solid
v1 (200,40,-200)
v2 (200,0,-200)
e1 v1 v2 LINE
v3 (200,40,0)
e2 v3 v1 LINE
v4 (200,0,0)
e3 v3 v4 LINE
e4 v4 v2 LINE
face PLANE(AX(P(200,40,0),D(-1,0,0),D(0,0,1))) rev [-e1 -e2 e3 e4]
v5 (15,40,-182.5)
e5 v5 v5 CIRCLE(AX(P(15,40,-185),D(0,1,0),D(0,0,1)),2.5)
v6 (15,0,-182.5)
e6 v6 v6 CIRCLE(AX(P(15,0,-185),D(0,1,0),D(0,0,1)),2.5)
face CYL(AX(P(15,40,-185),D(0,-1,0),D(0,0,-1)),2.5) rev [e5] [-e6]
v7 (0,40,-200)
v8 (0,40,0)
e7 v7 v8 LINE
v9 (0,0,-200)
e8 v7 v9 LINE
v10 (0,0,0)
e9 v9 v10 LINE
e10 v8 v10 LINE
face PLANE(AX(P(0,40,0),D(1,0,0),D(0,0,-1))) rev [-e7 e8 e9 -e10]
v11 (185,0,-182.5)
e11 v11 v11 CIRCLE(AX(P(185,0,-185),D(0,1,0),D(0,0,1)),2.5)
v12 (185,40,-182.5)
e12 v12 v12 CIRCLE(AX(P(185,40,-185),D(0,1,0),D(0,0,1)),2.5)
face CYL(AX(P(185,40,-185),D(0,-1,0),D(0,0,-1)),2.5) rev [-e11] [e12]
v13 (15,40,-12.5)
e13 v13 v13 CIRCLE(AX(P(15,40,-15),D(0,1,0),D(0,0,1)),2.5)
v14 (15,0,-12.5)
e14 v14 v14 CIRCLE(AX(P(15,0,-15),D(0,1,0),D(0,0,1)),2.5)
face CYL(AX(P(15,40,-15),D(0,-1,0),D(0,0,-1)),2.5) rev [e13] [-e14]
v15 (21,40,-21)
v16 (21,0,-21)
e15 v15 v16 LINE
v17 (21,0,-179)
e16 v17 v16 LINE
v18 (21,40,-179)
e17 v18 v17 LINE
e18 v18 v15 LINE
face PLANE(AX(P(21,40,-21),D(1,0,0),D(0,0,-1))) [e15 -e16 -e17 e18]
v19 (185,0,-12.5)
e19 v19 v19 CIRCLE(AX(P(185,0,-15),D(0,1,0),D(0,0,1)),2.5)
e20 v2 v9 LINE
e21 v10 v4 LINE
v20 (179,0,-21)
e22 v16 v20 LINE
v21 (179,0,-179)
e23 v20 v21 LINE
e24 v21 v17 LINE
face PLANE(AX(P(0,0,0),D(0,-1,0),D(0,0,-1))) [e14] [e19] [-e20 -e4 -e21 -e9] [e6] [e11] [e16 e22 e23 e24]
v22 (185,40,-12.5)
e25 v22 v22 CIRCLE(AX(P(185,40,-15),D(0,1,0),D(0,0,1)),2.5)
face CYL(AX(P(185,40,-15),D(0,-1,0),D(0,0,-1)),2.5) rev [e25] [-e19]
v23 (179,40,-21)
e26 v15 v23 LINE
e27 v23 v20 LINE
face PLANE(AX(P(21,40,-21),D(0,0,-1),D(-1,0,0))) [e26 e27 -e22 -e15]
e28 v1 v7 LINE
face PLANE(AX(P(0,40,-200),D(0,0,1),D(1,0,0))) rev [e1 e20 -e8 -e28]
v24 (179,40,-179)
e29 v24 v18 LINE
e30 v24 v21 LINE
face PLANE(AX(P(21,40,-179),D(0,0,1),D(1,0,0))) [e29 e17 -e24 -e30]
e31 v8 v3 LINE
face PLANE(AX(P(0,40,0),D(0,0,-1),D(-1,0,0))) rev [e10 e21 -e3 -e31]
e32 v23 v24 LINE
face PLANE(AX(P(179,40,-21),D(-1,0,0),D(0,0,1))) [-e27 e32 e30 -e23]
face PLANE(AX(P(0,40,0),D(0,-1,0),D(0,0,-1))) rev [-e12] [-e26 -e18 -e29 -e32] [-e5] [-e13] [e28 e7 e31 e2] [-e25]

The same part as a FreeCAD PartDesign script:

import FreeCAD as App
import Part
import Sketcher
from FreeCAD import Vector

doc = App.newDocument("Part")
body = doc.addObject("PartDesign::Body", "Body")

# Sketch on XZ plane
sketch1 = body.newObject("Sketcher::SketchObject", "Sketch")
sketch1.AttachmentSupport = (doc.getObject("XZ_Plane"), [""])
sketch1.MapMode = "FlatFace"
sketch1.addGeometry([
    Part.LineSegment(Vector(0, -200, 0), Vector(0, 0, 0)),  # 0
    Part.LineSegment(Vector(0, 0, 0), Vector(200, 0, 0)),  # 1
    Part.LineSegment(Vector(200, 0, 0), Vector(200, -200, 0)),  # 2
    Part.LineSegment(Vector(200, -200, 0), Vector(0, -200, 0)),  # 3
    Part.Circle(Vector(15, -15, 0), Vector(0, 0, 1), 2.5),  # 4
    Part.Circle(Vector(185, -15, 0), Vector(0, 0, 1), 2.5),  # 5
    Part.Circle(Vector(15, -185, 0), Vector(0, 0, 1), 2.5),  # 6
    Part.LineSegment(Vector(179, -21, 0), Vector(21, -21, 0)),  # 7
    Part.LineSegment(Vector(21, -21, 0), Vector(21, -179, 0)),  # 8
    Part.LineSegment(Vector(21, -179, 0), Vector(179, -179, 0)),  # 9
    Part.LineSegment(Vector(179, -179, 0), Vector(179, -21, 0)),  # 10
    Part.Circle(Vector(185, -185, 0), Vector(0, 0, 1), 2.5),  # 11
], False)
sketch1.addConstraint([
    Sketcher.Constraint("Coincident", 0, 2, 1, 1),
    Sketcher.Constraint("Coincident", 1, 2, 2, 1),
    Sketcher.Constraint("Coincident", 2, 2, 3, 1),
    Sketcher.Constraint("Coincident", 3, 2, 0, 1),
    Sketcher.Constraint("Coincident", 7, 2, 8, 1),
    Sketcher.Constraint("Coincident", 8, 2, 9, 1),
    Sketcher.Constraint("Coincident", 9, 2, 10, 1),
    Sketcher.Constraint("Coincident", 10, 2, 7, 1),
    Sketcher.Constraint("Vertical", 0),
    Sketcher.Constraint("Horizontal", 1),
    Sketcher.Constraint("Vertical", 2),
    Sketcher.Constraint("Horizontal", 3),
    Sketcher.Constraint("Horizontal", 7),
    Sketcher.Constraint("Vertical", 8),
    Sketcher.Constraint("Horizontal", 9),
    Sketcher.Constraint("Vertical", 10),
    Sketcher.Constraint("Coincident", 0, 2, -1, 1),
    Sketcher.Constraint("Equal", 4, 5),
    Sketcher.Constraint("Equal", 5, 6),
    Sketcher.Constraint("Equal", 6, 11),
    Sketcher.Constraint("Horizontal", 4, 3, 5, 3),
    Sketcher.Constraint("Horizontal", 6, 3, 11, 3),
    Sketcher.Constraint("Vertical", 4, 3, 6, 3),
    Sketcher.Constraint("Vertical", 5, 3, 11, 3),
    Sketcher.Constraint("Equal", 3, 0),
    Sketcher.Constraint("Equal", 9, 8),
    Sketcher.Constraint("Diameter", 4, 5.0),
    Sketcher.Constraint("DistanceX", 1, 1, 1, 2, 200.0),
    Sketcher.Constraint("DistanceX", 7, 2, 7, 1, 158.0),
    Sketcher.Constraint("DistanceX", -1, 1, 4, 3, 15.0),
    Sketcher.Constraint("DistanceY", 4, 3, -1, 1, 15.0),
    Sketcher.Constraint("DistanceX", -1, 1, 5, 3, 185.0),
    Sketcher.Constraint("DistanceY", 6, 3, -1, 1, 185.0),
    Sketcher.Constraint("DistanceX", -1, 1, 7, 2, 21.0),
    Sketcher.Constraint("DistanceY", 7, 2, -1, 1, 21.0),
])
pad1 = body.newObject("PartDesign::Pad", "Pad")
pad1.Profile = sketch1
pad1.Length = 40
pad1.Reversed = True

doc.recompute()
